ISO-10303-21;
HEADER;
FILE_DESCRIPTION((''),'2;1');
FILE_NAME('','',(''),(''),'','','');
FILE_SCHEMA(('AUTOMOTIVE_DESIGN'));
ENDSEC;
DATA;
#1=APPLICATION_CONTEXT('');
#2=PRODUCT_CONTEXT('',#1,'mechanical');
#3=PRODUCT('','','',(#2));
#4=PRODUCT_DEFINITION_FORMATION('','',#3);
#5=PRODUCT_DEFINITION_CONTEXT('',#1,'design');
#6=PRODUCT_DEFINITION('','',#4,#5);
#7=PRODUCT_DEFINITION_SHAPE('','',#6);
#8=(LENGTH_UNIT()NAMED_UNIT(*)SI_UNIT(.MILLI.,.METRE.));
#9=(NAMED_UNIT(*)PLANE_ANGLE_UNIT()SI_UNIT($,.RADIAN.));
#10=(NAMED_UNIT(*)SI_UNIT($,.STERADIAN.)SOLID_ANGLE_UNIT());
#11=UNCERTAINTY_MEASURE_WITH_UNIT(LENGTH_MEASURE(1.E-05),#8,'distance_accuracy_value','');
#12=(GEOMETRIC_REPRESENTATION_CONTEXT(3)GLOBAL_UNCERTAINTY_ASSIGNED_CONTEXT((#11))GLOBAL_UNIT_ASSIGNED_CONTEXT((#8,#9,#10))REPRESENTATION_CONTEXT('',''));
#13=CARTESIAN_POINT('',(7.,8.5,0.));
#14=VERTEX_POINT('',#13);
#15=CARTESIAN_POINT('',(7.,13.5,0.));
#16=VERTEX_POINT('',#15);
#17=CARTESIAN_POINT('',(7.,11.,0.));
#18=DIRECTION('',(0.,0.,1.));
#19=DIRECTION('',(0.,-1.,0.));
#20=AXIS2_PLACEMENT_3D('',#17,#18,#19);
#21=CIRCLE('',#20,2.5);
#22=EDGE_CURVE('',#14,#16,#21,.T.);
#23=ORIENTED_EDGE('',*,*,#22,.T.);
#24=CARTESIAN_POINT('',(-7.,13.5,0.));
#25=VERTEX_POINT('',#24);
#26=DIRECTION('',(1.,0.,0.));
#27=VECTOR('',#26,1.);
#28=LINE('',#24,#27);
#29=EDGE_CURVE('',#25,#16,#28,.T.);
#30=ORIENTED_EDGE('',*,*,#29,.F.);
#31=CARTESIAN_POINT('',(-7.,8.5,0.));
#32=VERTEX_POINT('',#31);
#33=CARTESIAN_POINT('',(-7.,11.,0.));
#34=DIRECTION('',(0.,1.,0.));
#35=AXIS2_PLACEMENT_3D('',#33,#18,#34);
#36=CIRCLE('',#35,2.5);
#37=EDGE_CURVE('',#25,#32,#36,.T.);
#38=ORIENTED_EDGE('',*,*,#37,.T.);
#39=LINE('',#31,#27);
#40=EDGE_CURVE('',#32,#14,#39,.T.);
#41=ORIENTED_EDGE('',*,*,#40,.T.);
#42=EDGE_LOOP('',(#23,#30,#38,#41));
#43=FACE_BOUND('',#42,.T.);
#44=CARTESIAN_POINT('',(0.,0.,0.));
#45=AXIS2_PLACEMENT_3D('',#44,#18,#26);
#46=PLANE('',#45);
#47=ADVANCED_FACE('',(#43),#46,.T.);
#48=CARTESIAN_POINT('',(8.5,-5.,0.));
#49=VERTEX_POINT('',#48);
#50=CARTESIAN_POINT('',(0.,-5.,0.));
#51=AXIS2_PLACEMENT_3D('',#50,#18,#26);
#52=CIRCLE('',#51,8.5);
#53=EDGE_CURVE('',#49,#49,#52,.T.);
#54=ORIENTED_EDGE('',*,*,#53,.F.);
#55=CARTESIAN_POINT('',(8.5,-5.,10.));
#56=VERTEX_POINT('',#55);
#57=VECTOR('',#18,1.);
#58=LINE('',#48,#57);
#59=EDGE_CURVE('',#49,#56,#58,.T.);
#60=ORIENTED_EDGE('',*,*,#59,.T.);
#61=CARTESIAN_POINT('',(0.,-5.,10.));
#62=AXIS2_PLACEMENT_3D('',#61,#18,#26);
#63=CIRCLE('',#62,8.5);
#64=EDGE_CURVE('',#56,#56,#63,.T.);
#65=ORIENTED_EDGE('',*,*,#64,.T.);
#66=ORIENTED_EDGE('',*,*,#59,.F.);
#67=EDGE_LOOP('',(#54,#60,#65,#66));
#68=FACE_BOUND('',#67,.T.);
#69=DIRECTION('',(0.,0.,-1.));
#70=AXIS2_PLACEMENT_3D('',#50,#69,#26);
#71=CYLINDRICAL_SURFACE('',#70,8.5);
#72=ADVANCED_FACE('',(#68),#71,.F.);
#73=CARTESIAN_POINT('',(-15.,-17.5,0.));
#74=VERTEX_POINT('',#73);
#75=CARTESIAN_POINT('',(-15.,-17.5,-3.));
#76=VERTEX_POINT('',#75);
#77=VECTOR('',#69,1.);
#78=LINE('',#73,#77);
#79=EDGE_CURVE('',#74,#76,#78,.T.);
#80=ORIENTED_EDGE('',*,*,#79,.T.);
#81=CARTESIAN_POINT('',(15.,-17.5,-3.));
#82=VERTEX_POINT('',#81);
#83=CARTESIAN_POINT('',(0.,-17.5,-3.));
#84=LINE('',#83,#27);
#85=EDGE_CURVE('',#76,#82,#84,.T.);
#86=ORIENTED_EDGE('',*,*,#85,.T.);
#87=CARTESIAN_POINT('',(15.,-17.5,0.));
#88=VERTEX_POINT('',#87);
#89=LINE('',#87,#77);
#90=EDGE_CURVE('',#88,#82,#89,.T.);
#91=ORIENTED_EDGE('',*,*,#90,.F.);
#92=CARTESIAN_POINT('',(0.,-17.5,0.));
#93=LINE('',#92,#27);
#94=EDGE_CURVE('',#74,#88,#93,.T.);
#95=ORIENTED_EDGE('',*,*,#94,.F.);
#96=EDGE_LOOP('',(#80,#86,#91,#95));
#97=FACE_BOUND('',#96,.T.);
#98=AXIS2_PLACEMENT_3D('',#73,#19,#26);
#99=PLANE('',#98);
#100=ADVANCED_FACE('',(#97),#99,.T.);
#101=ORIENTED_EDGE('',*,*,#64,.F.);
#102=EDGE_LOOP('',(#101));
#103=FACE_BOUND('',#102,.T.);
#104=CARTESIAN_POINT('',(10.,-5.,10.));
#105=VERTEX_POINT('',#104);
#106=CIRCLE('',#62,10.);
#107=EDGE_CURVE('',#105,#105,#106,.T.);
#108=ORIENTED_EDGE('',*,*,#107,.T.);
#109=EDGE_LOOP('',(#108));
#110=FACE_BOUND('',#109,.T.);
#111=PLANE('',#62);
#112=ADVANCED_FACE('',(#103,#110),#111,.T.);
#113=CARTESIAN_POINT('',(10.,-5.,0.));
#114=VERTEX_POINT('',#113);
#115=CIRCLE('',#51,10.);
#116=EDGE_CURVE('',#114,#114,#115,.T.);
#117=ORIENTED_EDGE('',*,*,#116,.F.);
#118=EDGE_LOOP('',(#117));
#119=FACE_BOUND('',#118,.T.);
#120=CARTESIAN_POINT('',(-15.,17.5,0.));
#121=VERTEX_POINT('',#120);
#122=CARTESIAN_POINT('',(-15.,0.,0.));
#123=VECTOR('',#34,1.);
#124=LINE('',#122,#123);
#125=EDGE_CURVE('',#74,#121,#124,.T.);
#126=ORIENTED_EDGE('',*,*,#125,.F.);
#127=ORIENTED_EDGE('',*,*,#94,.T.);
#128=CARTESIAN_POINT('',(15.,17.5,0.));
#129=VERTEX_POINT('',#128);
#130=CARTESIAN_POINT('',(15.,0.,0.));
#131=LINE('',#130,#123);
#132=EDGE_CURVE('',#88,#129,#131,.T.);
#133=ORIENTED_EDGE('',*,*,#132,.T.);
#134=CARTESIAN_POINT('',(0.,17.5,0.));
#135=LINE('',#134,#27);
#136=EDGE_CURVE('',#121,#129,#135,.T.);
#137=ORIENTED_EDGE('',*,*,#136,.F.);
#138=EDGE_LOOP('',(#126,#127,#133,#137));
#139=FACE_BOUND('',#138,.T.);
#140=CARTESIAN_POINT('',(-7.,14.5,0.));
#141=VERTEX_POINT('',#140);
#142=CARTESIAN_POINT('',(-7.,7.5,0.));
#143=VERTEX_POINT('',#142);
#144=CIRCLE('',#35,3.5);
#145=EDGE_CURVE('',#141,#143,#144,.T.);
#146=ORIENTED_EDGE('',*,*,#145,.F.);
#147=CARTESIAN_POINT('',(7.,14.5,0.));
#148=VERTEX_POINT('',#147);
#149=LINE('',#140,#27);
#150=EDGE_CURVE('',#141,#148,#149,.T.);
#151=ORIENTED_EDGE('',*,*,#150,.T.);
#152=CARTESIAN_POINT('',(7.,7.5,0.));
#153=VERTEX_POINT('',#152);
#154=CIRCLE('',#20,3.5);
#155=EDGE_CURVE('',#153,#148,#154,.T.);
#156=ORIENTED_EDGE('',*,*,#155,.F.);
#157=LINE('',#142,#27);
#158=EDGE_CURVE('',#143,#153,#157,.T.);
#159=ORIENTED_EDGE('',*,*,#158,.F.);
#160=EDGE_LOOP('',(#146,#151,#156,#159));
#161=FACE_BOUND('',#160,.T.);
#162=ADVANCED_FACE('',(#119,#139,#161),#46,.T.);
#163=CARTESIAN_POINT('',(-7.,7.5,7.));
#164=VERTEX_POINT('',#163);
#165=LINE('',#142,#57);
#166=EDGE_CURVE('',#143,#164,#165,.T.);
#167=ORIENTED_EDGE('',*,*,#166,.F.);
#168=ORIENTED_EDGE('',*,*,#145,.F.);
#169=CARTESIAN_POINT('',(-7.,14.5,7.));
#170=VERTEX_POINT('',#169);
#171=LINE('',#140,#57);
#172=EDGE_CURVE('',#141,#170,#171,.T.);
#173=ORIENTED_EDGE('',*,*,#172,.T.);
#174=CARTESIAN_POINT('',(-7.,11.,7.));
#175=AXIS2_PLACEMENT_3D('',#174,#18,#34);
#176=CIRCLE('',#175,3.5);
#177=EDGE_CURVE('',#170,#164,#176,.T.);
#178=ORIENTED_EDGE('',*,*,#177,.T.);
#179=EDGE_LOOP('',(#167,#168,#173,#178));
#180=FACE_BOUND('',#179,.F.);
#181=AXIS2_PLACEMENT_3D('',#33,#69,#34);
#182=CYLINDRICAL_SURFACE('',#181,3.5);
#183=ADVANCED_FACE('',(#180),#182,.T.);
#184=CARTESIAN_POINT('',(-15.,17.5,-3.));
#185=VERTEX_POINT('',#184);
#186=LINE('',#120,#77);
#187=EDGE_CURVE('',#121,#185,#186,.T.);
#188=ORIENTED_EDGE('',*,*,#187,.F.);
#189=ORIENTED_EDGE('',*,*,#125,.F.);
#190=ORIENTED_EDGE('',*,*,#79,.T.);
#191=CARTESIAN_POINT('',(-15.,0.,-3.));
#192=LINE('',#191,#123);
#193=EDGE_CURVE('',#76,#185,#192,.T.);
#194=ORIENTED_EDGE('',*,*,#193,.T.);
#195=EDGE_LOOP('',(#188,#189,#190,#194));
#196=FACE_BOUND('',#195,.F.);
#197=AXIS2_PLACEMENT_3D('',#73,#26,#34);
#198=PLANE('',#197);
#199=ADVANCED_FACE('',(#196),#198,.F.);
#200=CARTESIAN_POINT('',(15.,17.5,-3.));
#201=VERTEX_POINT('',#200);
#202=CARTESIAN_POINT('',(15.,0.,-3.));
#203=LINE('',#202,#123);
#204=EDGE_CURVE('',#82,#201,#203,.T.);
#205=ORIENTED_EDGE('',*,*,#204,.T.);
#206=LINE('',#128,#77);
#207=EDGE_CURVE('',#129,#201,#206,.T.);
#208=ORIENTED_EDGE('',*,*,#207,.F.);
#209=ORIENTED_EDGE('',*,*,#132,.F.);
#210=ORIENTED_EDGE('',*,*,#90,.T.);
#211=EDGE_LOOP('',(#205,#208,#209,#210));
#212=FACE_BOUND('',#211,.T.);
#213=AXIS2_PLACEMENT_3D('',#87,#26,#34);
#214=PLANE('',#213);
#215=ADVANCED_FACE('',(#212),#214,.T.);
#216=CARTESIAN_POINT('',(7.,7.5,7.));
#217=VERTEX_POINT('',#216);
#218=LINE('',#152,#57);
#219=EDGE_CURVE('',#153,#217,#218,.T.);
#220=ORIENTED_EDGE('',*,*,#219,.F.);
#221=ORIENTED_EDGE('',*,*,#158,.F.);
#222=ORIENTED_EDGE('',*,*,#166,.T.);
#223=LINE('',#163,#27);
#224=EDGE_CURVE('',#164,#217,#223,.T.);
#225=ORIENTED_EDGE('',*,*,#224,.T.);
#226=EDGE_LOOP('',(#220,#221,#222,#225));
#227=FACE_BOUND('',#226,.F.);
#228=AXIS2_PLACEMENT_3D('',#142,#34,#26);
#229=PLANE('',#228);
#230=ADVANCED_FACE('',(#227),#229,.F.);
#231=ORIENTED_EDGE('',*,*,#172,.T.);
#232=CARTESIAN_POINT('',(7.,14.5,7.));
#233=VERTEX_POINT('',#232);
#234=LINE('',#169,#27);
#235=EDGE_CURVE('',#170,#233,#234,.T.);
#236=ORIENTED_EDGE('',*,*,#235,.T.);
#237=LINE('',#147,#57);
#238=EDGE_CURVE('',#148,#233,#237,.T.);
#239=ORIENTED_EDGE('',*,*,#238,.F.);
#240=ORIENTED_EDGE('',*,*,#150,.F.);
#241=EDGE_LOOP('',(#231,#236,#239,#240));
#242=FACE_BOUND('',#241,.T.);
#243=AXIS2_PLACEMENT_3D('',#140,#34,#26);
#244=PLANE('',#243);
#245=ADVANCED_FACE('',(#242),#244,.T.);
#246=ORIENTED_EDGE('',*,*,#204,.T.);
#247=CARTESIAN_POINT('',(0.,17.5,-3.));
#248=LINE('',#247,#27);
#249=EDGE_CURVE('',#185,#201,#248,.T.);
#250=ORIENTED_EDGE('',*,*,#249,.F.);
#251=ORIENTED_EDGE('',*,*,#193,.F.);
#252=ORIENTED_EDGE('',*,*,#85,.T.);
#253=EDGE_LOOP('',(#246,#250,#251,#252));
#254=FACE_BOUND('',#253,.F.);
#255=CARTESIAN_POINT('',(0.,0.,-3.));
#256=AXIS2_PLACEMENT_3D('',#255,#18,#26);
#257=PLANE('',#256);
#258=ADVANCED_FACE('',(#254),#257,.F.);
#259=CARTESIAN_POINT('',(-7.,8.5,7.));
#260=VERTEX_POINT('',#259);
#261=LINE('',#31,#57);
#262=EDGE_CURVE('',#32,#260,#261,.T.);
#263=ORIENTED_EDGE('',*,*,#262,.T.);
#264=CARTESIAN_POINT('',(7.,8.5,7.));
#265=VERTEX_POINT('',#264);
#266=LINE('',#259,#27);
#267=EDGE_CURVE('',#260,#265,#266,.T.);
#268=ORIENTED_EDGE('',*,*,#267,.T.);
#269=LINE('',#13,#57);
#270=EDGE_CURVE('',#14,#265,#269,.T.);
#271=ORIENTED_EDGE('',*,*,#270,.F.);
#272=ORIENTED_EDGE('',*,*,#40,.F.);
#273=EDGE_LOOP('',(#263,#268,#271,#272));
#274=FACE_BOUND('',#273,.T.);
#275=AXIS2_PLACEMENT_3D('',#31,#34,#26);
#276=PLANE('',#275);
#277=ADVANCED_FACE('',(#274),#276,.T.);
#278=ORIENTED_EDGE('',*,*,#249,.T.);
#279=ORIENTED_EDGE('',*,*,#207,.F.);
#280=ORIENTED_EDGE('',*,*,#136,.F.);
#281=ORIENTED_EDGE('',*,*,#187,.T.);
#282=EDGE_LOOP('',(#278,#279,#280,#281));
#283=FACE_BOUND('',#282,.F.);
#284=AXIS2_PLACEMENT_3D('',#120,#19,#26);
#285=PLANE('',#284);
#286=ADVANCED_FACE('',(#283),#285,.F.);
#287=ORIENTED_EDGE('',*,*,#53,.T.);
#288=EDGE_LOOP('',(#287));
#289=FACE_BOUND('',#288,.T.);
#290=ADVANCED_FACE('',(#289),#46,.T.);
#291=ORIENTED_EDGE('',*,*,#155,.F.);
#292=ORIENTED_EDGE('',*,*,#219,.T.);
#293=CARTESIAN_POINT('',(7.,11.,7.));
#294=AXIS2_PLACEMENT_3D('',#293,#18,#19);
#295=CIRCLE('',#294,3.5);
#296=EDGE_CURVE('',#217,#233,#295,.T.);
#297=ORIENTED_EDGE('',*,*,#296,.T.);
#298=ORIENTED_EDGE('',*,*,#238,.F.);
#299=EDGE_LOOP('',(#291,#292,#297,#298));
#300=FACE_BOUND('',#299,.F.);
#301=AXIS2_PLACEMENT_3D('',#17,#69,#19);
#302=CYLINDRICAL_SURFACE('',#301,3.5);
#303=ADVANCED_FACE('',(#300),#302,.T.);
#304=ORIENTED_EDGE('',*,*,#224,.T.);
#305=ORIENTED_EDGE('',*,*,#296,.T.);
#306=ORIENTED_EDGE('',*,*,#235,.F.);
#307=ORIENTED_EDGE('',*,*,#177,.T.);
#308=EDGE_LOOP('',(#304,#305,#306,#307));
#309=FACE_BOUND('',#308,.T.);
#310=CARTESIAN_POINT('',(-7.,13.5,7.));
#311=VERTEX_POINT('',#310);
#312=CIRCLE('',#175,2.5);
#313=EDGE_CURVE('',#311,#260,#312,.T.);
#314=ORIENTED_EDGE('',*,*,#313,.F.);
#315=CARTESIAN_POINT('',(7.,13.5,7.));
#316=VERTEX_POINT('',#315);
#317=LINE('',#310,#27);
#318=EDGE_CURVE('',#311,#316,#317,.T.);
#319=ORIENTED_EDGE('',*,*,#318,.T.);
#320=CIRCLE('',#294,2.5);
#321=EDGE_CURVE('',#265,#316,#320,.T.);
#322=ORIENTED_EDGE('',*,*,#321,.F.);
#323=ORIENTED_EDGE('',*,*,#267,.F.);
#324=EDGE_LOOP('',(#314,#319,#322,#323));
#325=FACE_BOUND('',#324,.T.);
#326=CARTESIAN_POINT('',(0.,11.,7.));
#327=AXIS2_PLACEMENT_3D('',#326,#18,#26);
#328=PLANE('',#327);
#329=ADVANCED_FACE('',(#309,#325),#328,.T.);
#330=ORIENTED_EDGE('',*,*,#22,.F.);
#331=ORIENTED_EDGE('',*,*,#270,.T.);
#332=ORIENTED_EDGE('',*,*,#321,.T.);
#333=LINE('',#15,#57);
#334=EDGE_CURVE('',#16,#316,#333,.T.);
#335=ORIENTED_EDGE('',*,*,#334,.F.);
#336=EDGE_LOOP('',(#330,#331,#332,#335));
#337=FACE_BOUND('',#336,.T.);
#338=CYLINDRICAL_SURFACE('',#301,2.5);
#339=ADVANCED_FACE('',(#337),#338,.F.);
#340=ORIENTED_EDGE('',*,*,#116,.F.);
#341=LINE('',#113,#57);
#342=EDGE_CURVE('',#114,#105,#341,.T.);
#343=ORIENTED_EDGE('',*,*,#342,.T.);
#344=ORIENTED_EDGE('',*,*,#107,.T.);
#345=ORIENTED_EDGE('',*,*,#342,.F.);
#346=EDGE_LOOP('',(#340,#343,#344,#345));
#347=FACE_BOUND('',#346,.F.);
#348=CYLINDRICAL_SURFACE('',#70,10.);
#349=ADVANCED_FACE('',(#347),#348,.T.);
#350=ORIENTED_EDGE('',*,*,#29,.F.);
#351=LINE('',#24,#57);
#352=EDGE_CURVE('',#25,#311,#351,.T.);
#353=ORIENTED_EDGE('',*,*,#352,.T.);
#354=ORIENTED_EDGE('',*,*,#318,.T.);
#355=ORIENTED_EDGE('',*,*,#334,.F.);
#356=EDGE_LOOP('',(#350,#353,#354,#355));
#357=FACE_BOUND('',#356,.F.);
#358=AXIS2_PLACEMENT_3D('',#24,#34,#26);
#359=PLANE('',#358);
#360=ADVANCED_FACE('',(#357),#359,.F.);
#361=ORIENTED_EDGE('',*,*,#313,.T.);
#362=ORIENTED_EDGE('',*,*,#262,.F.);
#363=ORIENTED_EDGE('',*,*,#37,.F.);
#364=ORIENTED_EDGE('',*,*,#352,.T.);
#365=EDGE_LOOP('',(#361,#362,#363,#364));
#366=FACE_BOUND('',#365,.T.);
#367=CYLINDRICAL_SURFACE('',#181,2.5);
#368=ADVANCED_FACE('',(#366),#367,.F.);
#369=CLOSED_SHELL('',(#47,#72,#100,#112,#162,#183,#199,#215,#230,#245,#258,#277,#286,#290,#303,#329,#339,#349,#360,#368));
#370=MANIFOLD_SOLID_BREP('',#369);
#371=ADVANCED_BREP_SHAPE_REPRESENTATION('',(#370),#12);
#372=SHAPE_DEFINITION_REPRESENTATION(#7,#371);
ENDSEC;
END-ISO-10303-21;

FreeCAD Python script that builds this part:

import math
import FreeCAD as App
import Part
import Sketcher
from FreeCAD import Vector
Q = App.Units.Quantity

doc = App.newDocument("Part")
params = doc.addObject("Spreadsheet::Sheet", "Params")
for row, (alias, value) in enumerate([
    ("sketch1_width", "30 mm"),
    ("sketch1_height", "35 mm"),
    ("pad1_length", "3 mm"),
    ("sketch2_diameter", "20 mm"),
    ("sketch2_diameter2", "17 mm"),
    ("pad2_length", "10 mm"),
    ("sketch3_radius", "3.5 mm"),
    ("sketch3_radius2", "2.5 mm"),
    ("sketch3_width", "14 mm"),
    ("pad3_length", "7 mm"),
], start=1):
    params.set(f"A{row}", alias)
    params.set(f"B{row}", "=" + value)
    params.setAlias(f"B{row}", alias)

body = doc.addObject("PartDesign::Body", "Body")

sketch1 = doc.addObject("Sketcher::SketchObject", "Sketch")
body.addObject(sketch1)
sketch1.AttachmentSupport = (doc.XY_Plane, [""])
sketch1.MapMode = "FlatFace"
sketch1.addGeometry([
    Part.LineSegment(Vector(-15, 17.5, 0), Vector(-15, -17.5, 0)),
    Part.LineSegment(Vector(-15, -17.5, 0), Vector(15, -17.5, 0)),
    Part.LineSegment(Vector(15, -17.5, 0), Vector(15, 17.5, 0)),
    Part.LineSegment(Vector(15, 17.5, 0), Vector(-15, 17.5, 0)),
], False)
sketch1.addConstraint([
    Sketcher.Constraint("Coincident", 0, 2, 1, 1),
    Sketcher.Constraint("Coincident", 1, 2, 2, 1),
    Sketcher.Constraint("Coincident", 2, 2, 3, 1),
    Sketcher.Constraint("Coincident", 3, 2, 0, 1),
    Sketcher.Constraint("Vertical", 0),
    Sketcher.Constraint("Horizontal", 1),
    Sketcher.Constraint("Vertical", 2),
    Sketcher.Constraint("Horizontal", 3),
    Sketcher.Constraint("Symmetric", 0, 2, 2, 2, -1, 1),
    Sketcher.Constraint("DistanceX", 1, 1, 1, 2, Q("30 mm")),
    Sketcher.Constraint("DistanceY", 0, 2, 0, 1, Q("35 mm")),
])
sketch1.setExpression("Constraints[9]", "Params.sketch1_width")
sketch1.setExpression("Constraints[10]", "Params.sketch1_height")
pad1 = doc.addObject("PartDesign::Pad", "Pad")
body.addObject(pad1)
pad1.Profile = sketch1
pad1.setExpression("Length", "Params.pad1_length")
pad1.Reversed = True

sketch2 = doc.addObject("Sketcher::SketchObject", "Sketch001")
body.addObject(sketch2)
sketch2.AttachmentSupport = (doc.XY_Plane, [""])
sketch2.MapMode = "FlatFace"
sketch2.addGeometry([
    Part.Circle(Vector(0, -5, 0), Vector(0, 0, 1), 10),
    Part.Circle(Vector(0, -5, 0), Vector(0, 0, 1), 8.5),
], False)
sketch2.addConstraint([
    Sketcher.Constraint("Coincident", 1, 3, 0, 3),
    Sketcher.Constraint("PointOnObject", 0, 3, -2),
    Sketcher.Constraint("Diameter", 0, Q("20 mm")),
    Sketcher.Constraint("Diameter", 1, Q("17 mm")),
    Sketcher.Constraint("DistanceY", 0, 3, -1, 1, Q("5 mm")),
])
sketch2.setExpression("Constraints[2]", "Params.sketch2_diameter")
sketch2.setExpression("Constraints[3]", "Params.sketch2_diameter2")
pad2 = doc.addObject("PartDesign::Pad", "Pad001")
body.addObject(pad2)
pad2.Profile = sketch2
pad2.setExpression("Length", "Params.pad2_length")

sketch3 = doc.addObject("Sketcher::SketchObject", "Sketch002")
body.addObject(sketch3)
sketch3.AttachmentSupport = (doc.XY_Plane, [""])
sketch3.MapMode = "FlatFace"
sketch3.addGeometry([
    Part.ArcOfCircle(Part.Circle(Vector(-7, 11, 0), Vector(0, 0, 1), 3.5), math.radians(90), math.radians(270)),
    Part.LineSegment(Vector(-7, 7.5, 0), Vector(7, 7.5, 0)),
    Part.ArcOfCircle(Part.Circle(Vector(7, 11, 0), Vector(0, 0, 1), 3.5), math.radians(-90), math.radians(90)),
    Part.LineSegment(Vector(7, 14.5, 0), Vector(-7, 14.5, 0)),
    Part.ArcOfCircle(Part.Circle(Vector(-7, 11, 0), Vector(0, 0, 1), 2.5), math.radians(90), math.radians(270)),
    Part.LineSegment(Vector(-7, 13.5, 0), Vector(7, 13.5, 0)),
    Part.ArcOfCircle(Part.Circle(Vector(7, 11, 0), Vector(0, 0, 1), 2.5), math.radians(-90), math.radians(90)),
    Part.LineSegment(Vector(7, 8.5, 0), Vector(-7, 8.5, 0)),
], False)
sketch3.addConstraint([
    Sketcher.Constraint("Tangent", 0, 2, 1, 1),
    Sketcher.Constraint("Tangent", 1, 2, 2, 1),
    Sketcher.Constraint("Tangent", 2, 2, 3, 1),
    Sketcher.Constraint("Tangent", 3, 2, 0, 1),
    Sketcher.Constraint("Tangent", 4, 1, 5, 1),
    Sketcher.Constraint("Tangent", 5, 2, 6, 2),
    Sketcher.Constraint("Tangent", 6, 1, 7, 1),
    Sketcher.Constraint("Tangent", 7, 2, 4, 2),
    Sketcher.Constraint("Horizontal", 1),
    Sketcher.Constraint("Horizontal", 3),
    Sketcher.Constraint("Horizontal", 5),
    Sketcher.Constraint("Horizontal", 7),
    Sketcher.Constraint("Coincident", 4, 3, 0, 3),
    Sketcher.Constraint("Vertical", 6, 3, 1, 2),
    Sketcher.Constraint("Radius", 0, Q("3.5 mm")),
    Sketcher.Constraint("Radius", 4, Q("2.5 mm")),
    Sketcher.Constraint("DistanceX", 1, 1, 1, 2, Q("14 mm")),
    Sketcher.Constraint("DistanceX", 0, 3, -1, 1, Q("7 mm")),
    Sketcher.Constraint("DistanceY", -1, 1, 0, 3, Q("11 mm")),
])
sketch3.setExpression("Constraints[14]", "Params.sketch3_radius")
sketch3.setExpression("Constraints[15]", "Params.sketch3_radius2")
sketch3.setExpression("Constraints[16]", "Params.sketch3_width")
pad3 = doc.addObject("PartDesign::Pad", "Pad002")
body.addObject(pad3)
pad3.Profile = sketch3
pad3.setExpression("Length", "Params.pad3_length")

doc.recompute()
